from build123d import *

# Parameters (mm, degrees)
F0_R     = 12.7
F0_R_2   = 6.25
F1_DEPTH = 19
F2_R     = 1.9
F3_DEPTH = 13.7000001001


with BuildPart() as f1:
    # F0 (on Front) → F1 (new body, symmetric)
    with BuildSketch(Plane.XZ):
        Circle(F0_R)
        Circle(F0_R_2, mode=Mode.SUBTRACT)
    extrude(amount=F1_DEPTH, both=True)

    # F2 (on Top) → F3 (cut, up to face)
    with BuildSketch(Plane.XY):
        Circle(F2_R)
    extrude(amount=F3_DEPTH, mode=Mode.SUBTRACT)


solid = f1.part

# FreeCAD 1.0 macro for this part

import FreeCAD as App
import Part
import Sketcher
from FreeCAD import Vector

doc = App.newDocument("Part")
body = doc.addObject("PartDesign::Body", "Body")

# Sketch on XZ plane
sketch1 = body.newObject("Sketcher::SketchObject", "Sketch")
sketch1.AttachmentSupport = (doc.getObject("XZ_Plane"), [""])
sketch1.MapMode = "FlatFace"
sketch1.addGeometry(Part.Circle(Vector(0, 0, 0), Vector(0, 0, 1), 13), False)
sketch1.addGeometry(Part.Circle(Vector(0, 0, 0), Vector(0, 0, 1), 6), False)
sketch1.addConstraint(Sketcher.Constraint("Coincident", 0, 3, -1, 1))
sketch1.addConstraint(Sketcher.Constraint("Coincident", 1, 3, -1, 1))
sketch1.addConstraint(Sketcher.Constraint("Diameter", 0, 25.4))
sketch1.addConstraint(Sketcher.Constraint("Diameter", 1, 12.5))
pad1 = body.newObject("PartDesign::Pad", "Pad")
pad1.Profile = sketch1
pad1.Length = 38
pad1.Midplane = True

# Sketch on XY plane
sketch2 = body.newObject("Sketcher::SketchObject", "Sketch001")
sketch2.AttachmentSupport = (doc.getObject("XY_Plane"), [""])
sketch2.MapMode = "FlatFace"
sketch2.addGeometry(Part.Circle(Vector(0, 0, 0), Vector(0, 0, 1), 1.9), False)
sketch2.addConstraint(Sketcher.Constraint("Coincident", 0, 3, -1, 1))
sketch2.addConstraint(Sketcher.Constraint("Diameter", 0, 3.8))
pocket1 = body.newObject("PartDesign::Pocket", "Pocket")
pocket1.Profile = sketch2
pocket1.Length = 13.7
pocket1.Reversed = True

doc.recompute()
